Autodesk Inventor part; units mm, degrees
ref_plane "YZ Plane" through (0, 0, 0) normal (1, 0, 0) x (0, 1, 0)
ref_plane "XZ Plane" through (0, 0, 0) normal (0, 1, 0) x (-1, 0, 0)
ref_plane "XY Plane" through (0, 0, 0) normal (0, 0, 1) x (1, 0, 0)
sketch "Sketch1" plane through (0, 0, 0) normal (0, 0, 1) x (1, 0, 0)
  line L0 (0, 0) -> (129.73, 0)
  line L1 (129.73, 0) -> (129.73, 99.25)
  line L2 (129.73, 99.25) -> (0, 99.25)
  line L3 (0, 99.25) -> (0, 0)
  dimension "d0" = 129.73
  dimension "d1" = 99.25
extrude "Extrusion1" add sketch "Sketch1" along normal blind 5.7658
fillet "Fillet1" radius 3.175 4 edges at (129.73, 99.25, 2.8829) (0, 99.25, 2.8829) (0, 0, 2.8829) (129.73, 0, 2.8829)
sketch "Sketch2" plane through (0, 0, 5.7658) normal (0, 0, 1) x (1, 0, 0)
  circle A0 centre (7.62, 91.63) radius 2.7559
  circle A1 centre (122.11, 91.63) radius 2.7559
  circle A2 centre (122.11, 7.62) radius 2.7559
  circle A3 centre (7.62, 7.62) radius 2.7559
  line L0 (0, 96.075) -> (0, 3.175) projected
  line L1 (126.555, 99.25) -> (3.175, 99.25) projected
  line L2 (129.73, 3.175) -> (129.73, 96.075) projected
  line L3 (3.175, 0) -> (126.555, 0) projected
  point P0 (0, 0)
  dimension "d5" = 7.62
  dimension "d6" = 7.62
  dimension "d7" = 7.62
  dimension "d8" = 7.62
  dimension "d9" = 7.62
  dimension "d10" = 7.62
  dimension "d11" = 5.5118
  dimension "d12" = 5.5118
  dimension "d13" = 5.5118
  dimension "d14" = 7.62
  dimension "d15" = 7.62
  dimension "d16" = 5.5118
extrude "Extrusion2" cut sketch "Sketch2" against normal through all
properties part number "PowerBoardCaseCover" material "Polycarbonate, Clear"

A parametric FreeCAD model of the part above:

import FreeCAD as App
import Part
import Sketcher
from FreeCAD import Vector
Q = App.Units.Quantity


def edges_at(feature, points):
    """Names of the edges that pass closest to the given points."""
    edges = feature.Shape.Edges
    near = lambda p: min(range(len(edges)), key=lambda i: edges[i].distToShape(Part.Vertex(*p))[0])
    return sorted({f"Edge{near(p) + 1}" for p in points})


def add_polygon(sketch, points):
    """Adds a closed chain of lines whose ends are joined by coincident constraints."""
    first, n = sketch.GeometryCount, len(points)
    for a, b in zip(points, points[1:] + points[:1]):
        sketch.addGeometry(Part.LineSegment(App.Vector(*a, 0), App.Vector(*b, 0)), False)
    for i in range(n):
        sketch.addConstraint(Sketcher.Constraint("Coincident", first + i, 2, first + (i + 1) % n, 1))

doc = App.newDocument("Part")
body = doc.addObject("PartDesign::Body", "Body")

# Sketch on XY plane
sketch1 = body.newObject("Sketcher::SketchObject", "Sketch")
sketch1.AttachmentSupport = (doc.getObject("XY_Plane"), [""])
sketch1.MapMode = "FlatFace"
add_polygon(sketch1, [(0, 99.25), (0, 0), (129.73, 0), (129.73, 99.25)])  # lines 0-3
sketch1.addConstraint([
    Sketcher.Constraint("Vertical", 0),
    Sketcher.Constraint("Horizontal", 1),
    Sketcher.Constraint("Vertical", 2),
    Sketcher.Constraint("Horizontal", 3),
    Sketcher.Constraint("Coincident", 0, 2, -1, 1),
    Sketcher.Constraint("DistanceX", 1, 1, 1, 2, Q("129.73 mm")),
    Sketcher.Constraint("DistanceY", 0, 2, 0, 1, Q("99.25 mm")),
])
pad1 = body.newObject("PartDesign::Pad", "Pad")
pad1.Profile = sketch1
pad1.Length = Q("0.227 in")
doc.recompute()

fillet = body.newObject("PartDesign::Fillet", "Fillet")
fillet.Base = (pad1, edges_at(pad1, [
    (129.73, 99.25, 2.883),
    (0, 99.25, 2.883),
    (0, 0, 2.883),
    (129.73, 0, 2.883),
]))
fillet.Radius = Q("0.125 in")

# Sketch on XY plane
sketch2 = body.newObject("Sketcher::SketchObject", "Sketch001")
sketch2.AttachmentSupport = (doc.getObject("XY_Plane"), [""])
sketch2.MapMode = "FlatFace"
sketch2.AttachmentOffset = App.Placement(Vector(0, 0, 0.227 * 25.4), App.Rotation())
sketch2.addGeometry([
    Part.Circle(Vector(7.62, 91.63, 0), Vector(0, 0, 1), 2.7559),
    Part.Circle(Vector(122.11, 91.63, 0), Vector(0, 0, 1), 2.7559),
    Part.Circle(Vector(122.11, 7.62, 0), Vector(0, 0, 1), 2.7559),
    Part.Circle(Vector(7.62, 7.62, 0), Vector(0, 0, 1), 2.7559),
], False)
sketch2.addConstraint([
    Sketcher.Constraint("Equal", 0, 1),
    Sketcher.Constraint("Equal", 1, 2),
    Sketcher.Constraint("Equal", 2, 3),
    Sketcher.Constraint("Horizontal", 0, 3, 1, 3),
    Sketcher.Constraint("Horizontal", 2, 3, 3, 3),
    Sketcher.Constraint("Vertical", 1, 3, 2, 3),
    Sketcher.Constraint("Vertical", 0, 3, 3, 3),
    Sketcher.Constraint("Diameter", 0, Q("0.217 in")),
    Sketcher.Constraint("DistanceX", -1, 1, 0, 3, Q("0.3 in")),
    Sketcher.Constraint("DistanceY", -1, 1, 2, 3, Q("0.3 in")),
    Sketcher.Constraint("DistanceY", -1, 1, 0, 3, Q("91.63 mm")),
    Sketcher.Constraint("DistanceX", -1, 1, 1, 3, Q("122.11 mm")),
])
pocket1 = body.newObject("PartDesign::Pocket", "Pocket")
pocket1.Profile = sketch2
pocket1.Type = "ThroughAll"

doc.recompute()
